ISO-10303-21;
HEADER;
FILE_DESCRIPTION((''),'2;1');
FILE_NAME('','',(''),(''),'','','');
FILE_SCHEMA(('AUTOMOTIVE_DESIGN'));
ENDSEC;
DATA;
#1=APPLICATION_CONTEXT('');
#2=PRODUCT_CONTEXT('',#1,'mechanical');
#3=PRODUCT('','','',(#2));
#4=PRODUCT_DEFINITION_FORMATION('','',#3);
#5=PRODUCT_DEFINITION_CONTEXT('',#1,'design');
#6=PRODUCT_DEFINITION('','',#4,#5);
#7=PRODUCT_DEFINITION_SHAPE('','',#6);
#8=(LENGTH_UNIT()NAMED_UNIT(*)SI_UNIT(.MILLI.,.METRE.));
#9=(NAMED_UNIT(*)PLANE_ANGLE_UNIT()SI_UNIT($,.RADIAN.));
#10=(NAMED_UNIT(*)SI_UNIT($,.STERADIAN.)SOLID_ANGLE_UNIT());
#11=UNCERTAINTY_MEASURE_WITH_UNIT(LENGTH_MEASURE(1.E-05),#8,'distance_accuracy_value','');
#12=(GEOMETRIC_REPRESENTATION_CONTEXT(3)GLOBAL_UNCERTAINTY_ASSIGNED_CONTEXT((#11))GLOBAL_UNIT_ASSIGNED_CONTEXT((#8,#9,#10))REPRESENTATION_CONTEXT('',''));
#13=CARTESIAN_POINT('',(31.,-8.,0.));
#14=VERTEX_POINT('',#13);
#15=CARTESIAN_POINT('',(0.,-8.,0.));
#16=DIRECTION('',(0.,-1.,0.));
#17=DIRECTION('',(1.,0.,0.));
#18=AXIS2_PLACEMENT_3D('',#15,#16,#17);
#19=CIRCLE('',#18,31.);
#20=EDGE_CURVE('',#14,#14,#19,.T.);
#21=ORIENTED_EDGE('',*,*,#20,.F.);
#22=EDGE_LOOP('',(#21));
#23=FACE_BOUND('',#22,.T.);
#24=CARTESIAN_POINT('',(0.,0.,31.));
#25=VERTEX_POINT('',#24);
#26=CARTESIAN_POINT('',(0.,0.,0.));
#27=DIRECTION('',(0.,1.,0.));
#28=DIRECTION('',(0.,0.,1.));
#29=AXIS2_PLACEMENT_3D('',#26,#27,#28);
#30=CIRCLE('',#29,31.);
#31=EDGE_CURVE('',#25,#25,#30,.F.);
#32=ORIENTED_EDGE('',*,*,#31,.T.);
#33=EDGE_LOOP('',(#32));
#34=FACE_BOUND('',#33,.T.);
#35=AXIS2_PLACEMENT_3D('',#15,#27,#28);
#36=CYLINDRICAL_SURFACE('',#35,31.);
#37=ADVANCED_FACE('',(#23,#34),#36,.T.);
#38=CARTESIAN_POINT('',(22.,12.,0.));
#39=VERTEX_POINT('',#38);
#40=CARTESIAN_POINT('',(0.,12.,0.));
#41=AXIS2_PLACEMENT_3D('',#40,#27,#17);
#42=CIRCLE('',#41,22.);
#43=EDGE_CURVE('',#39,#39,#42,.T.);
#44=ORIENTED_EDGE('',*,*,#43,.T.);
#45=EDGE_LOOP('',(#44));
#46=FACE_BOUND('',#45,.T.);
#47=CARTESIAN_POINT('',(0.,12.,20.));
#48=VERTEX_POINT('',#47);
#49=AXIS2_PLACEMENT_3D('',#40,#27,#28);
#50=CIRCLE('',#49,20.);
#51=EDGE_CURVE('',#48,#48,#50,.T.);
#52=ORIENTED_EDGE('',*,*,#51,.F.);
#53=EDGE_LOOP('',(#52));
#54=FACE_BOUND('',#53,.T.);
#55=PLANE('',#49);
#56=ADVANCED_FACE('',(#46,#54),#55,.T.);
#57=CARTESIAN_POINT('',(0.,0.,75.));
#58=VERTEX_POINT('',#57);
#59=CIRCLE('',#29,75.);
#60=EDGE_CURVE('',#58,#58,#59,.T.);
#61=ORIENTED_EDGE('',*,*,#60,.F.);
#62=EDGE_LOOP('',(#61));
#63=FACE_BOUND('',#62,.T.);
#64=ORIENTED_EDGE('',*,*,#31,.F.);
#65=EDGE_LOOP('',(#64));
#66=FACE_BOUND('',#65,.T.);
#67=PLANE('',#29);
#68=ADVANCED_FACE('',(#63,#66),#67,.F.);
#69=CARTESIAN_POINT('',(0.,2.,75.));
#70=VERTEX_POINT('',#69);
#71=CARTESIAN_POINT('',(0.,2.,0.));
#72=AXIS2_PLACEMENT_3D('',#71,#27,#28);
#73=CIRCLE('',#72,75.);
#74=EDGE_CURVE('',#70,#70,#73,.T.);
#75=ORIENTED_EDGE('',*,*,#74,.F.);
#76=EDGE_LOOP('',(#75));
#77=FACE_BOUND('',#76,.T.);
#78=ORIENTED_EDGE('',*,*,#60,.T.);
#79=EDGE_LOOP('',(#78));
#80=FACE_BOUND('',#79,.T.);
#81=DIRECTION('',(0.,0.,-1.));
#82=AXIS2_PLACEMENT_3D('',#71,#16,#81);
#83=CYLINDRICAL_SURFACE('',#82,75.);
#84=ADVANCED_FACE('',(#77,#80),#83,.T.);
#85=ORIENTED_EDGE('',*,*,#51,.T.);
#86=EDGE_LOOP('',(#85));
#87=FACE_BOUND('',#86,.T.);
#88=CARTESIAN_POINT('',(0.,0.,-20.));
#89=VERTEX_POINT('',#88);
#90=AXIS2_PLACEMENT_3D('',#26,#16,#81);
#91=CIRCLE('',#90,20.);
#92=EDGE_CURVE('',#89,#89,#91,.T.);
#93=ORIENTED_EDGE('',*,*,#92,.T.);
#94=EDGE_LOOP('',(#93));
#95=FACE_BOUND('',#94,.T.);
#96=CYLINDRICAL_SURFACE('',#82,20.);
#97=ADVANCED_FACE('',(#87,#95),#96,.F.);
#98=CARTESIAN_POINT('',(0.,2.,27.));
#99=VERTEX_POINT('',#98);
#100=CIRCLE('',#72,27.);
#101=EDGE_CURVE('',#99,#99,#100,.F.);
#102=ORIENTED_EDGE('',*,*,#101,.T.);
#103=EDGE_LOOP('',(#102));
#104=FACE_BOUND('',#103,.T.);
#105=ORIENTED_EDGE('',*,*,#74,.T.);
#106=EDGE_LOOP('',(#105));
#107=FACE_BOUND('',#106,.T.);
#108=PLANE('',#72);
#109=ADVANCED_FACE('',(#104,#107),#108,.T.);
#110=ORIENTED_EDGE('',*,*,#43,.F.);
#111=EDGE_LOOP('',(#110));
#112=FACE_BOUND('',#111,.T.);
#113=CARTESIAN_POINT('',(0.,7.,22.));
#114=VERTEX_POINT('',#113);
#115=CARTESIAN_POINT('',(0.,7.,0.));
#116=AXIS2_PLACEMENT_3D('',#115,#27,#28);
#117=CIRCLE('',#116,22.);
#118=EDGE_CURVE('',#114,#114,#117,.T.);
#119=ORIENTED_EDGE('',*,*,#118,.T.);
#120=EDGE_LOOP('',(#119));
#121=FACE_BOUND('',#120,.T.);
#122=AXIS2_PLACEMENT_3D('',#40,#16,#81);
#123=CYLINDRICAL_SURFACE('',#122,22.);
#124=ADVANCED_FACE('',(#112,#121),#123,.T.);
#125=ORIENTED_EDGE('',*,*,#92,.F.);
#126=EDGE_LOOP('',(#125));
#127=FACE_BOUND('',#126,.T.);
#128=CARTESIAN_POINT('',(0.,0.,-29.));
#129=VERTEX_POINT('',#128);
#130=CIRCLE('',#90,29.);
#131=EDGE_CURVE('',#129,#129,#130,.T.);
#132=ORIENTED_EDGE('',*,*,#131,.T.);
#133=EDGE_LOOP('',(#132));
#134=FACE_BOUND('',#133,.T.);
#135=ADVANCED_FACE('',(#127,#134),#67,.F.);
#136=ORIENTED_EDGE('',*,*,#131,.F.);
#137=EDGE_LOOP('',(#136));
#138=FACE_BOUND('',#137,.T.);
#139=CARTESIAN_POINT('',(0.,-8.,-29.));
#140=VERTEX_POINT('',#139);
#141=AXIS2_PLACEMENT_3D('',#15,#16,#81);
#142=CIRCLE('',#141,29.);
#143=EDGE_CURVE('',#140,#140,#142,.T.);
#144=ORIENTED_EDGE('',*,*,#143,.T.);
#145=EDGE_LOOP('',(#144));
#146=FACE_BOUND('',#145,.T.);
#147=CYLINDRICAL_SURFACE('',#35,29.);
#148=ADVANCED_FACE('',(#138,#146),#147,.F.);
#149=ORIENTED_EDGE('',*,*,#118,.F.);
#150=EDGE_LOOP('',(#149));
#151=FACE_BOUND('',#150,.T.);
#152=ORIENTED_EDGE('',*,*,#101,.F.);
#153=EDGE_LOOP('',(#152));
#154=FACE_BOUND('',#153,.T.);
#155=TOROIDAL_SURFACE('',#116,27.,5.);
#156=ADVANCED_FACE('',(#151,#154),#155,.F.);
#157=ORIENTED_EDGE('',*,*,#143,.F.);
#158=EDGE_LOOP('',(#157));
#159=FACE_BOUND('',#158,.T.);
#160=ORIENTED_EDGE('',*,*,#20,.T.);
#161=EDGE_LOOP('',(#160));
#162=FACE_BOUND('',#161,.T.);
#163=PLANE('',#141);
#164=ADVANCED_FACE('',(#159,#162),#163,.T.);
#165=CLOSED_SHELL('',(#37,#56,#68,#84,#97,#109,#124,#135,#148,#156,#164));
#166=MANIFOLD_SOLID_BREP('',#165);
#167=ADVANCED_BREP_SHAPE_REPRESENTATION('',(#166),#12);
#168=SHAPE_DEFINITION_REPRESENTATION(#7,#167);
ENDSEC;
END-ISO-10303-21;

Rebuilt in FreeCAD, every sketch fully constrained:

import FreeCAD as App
import Part
import Sketcher

V = App.Vector
Q = App.Units.Quantity


def edges_at(feature, points):
    """Names of the edges that pass closest to the given points."""
    edges = feature.Shape.Edges
    near = lambda p: min(range(len(edges)), key=lambda i: edges[i].distToShape(Part.Vertex(*p))[0])
    return sorted({f"Edge{near(p) + 1}" for p in points})

doc = App.newDocument("Part")
body = doc.addObject("PartDesign::Body", "Body")

# Sketch on XZ plane
sketch1 = body.newObject("Sketcher::SketchObject", "Sketch")
sketch1.AttachmentSupport = (doc.getObject("XZ_Plane"), [""])
sketch1.MapMode = "FlatFace"
sketch1.addGeometry(Part.Circle(V(0, 0, 0), V(0, 0, 1), 75), False)
sketch1.addConstraint(Sketcher.Constraint("Coincident", 0, 3, -1, 1))
sketch1.addConstraint(Sketcher.Constraint("Diameter", 0, Q("150 mm")))
pad1 = body.newObject("PartDesign::Pad", "Pad")
pad1.Profile = sketch1
pad1.Length = 2
pad1.Reversed = True

# Sketch on XZ plane
sketch2 = body.newObject("Sketcher::SketchObject", "Sketch001")
sketch2.AttachmentSupport = (doc.getObject("XZ_Plane"), [""])
sketch2.MapMode = "FlatFace"
sketch2.addGeometry(Part.Circle(V(0, 0, 0), V(0, 0, 1), 31), False)
sketch2.addGeometry(Part.Circle(V(0, 0, 0), V(0, 0, 1), 29), False)
sketch2.addConstraint(Sketcher.Constraint("Coincident", 0, 3, -1, 1))
sketch2.addConstraint(Sketcher.Constraint("Coincident", 1, 3, -1, 1))
sketch2.addConstraint(Sketcher.Constraint("Diameter", 0, Q("62 mm")))
sketch2.addConstraint(Sketcher.Constraint("Diameter", 1, Q("58 mm")))
pad2 = body.newObject("PartDesign::Pad", "Pad001")
pad2.Profile = sketch2
pad2.Length = 8

# Sketch on XZ plane
sketch3 = body.newObject("Sketcher::SketchObject", "Sketch002")
sketch3.AttachmentSupport = (doc.getObject("XZ_Plane"), [""])
sketch3.MapMode = "FlatFace"
sketch3.addGeometry(Part.Circle(V(0, 0, 0), V(0, 0, 1), 20), False)
sketch3.addConstraint(Sketcher.Constraint("Coincident", 0, 3, -1, 1))
sketch3.addConstraint(Sketcher.Constraint("Diameter", 0, Q("40 mm")))
pocket1 = body.newObject("PartDesign::Pocket", "Pocket")
pocket1.Profile = sketch3
pocket1.Type = "ThroughAll"

# Sketch on XZ plane
sketch4 = body.newObject("Sketcher::SketchObject", "Sketch003")
sketch4.AttachmentSupport = (doc.getObject("XZ_Plane"), [""])
sketch4.MapMode = "FlatFace"
sketch4.AttachmentOffset = App.Placement(V(0, 0, -2), App.Rotation())
sketch4.addGeometry(Part.Circle(V(0, 0, 0), V(0, 0, 1), 22), False)
sketch4.addGeometry(Part.Circle(V(0, 0, 0), V(0, 0, 1), 20), False)
sketch4.addConstraint(Sketcher.Constraint("Coincident", 0, 3, -1, 1))
sketch4.addConstraint(Sketcher.Constraint("Coincident", 1, 3, -1, 1))
sketch4.addConstraint(Sketcher.Constraint("Diameter", 0, Q("44 mm")))
sketch4.addConstraint(Sketcher.Constraint("Diameter", 1, Q("40 mm")))
pad3 = body.newObject("PartDesign::Pad", "Pad002")
pad3.Profile = sketch4
pad3.Length = 10
pad3.Reversed = True
doc.recompute()

fillet = body.newObject("PartDesign::Fillet", "Fillet")
fillet.Base = (pad3, edges_at(pad3, [(-22, 2, 0)]))
fillet.Radius = 5

doc.recompute()
